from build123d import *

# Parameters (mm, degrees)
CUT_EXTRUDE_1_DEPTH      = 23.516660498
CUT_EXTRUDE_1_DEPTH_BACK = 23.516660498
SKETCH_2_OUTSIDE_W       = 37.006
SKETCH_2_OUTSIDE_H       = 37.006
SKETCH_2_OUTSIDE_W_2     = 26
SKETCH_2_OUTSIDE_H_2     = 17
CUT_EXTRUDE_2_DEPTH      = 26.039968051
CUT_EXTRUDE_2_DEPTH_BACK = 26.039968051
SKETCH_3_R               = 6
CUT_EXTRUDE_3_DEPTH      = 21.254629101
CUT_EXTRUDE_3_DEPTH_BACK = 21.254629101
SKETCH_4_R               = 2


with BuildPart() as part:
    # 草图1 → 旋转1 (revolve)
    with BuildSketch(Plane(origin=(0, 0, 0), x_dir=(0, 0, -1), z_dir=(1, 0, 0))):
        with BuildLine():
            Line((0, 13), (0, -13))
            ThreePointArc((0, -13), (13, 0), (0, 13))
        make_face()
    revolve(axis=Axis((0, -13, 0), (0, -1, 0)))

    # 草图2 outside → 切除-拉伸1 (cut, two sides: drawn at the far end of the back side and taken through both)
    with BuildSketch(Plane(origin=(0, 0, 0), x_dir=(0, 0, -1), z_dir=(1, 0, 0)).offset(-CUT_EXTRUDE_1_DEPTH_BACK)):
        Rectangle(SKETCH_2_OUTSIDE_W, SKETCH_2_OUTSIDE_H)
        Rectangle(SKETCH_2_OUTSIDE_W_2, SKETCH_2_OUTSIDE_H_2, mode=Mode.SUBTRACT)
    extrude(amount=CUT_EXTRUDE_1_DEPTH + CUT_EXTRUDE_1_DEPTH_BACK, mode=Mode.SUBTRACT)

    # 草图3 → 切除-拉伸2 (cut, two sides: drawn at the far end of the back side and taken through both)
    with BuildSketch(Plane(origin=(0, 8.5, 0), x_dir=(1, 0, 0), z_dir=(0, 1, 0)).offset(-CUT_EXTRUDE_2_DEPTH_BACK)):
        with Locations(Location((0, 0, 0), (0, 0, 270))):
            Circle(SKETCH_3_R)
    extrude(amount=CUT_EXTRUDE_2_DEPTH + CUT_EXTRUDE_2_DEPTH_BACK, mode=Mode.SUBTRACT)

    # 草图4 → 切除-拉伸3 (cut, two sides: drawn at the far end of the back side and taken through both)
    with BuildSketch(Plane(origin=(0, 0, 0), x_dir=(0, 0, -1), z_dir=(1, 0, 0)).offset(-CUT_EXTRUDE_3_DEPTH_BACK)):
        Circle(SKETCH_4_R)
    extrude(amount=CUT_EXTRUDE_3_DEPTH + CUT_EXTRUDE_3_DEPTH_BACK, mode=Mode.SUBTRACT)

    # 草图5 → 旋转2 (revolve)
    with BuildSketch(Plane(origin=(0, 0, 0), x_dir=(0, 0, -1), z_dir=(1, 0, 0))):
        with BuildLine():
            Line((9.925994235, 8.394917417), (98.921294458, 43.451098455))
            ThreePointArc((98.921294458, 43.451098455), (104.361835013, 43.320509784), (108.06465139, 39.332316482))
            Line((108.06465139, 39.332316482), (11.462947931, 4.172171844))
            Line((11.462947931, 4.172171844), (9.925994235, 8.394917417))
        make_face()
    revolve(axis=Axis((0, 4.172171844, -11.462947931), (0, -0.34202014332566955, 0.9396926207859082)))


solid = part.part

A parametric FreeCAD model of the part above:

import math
import FreeCAD as App
import Part
import Sketcher
from FreeCAD import Vector
Q = App.Units.Quantity

doc = App.newDocument("Part")
params = doc.addObject("Spreadsheet::Sheet", "Params")
for row, (alias, value) in enumerate([
    ("sketch1_radius", "13 mm"),
    ("revolution_angle", "360 deg"),
    ("sketch2_width", "17 mm"),
    ("sketch2_height", "26 mm"),
    ("sketch3_diameter", "12 mm"),
    ("sketch4_diameter", "4 mm"),
    ("sketch5_radius", "7 mm"),
    ("revolution2_angle", "360 deg"),
], start=1):
    params.set(f"A{row}", alias)
    params.set(f"B{row}", "=" + value)
    params.setAlias(f"B{row}", alias)

body = doc.addObject("PartDesign::Body", "Body")

sketch1 = doc.addObject("Sketcher::SketchObject", "Sketch")
body.addObject(sketch1)
sketch1.AttachmentSupport = (doc.YZ_Plane, [""])
sketch1.MapMode = "FlatFace"
sketch1.addGeometry([
    Part.LineSegment(Vector(13, 0, 0), Vector(-13, 0, 0)),
    Part.ArcOfCircle(Part.Circle(Vector(0, 0, 0), Vector(0, 0, 1), 13), math.radians(180), math.radians(360)),
], False)
sketch1.addConstraint([
    Sketcher.Constraint("Coincident", 0, 1, 1, 2),
    Sketcher.Constraint("Coincident", 1, 1, 0, 2),
    Sketcher.Constraint("Horizontal", 0),
    Sketcher.Constraint("Coincident", 1, 3, -1, 1),
    Sketcher.Constraint("PointOnObject", 0, 1, -1),
    Sketcher.Constraint("Radius", 1, 13.0),
])
sketch1.setExpression("Constraints[5]", "Params.sketch1_radius")
revolution = doc.addObject("PartDesign::Revolution", "Revolution")
body.addObject(revolution)
revolution.Profile = sketch1
revolution.ReferenceAxis = (sketch1, ["H_Axis"])
revolution.setExpression("Angle", "Params.revolution_angle")

sketch2 = doc.addObject("Sketcher::SketchObject", "Sketch001")
body.addObject(sketch2)
sketch2.AttachmentSupport = (doc.YZ_Plane, [""])
sketch2.MapMode = "FlatFace"
sketch2.addGeometry([
    Part.LineSegment(Vector(19, 19, 0), Vector(-19, 19, 0)),
    Part.LineSegment(Vector(-19, 19, 0), Vector(-19, -19, 0)),
    Part.LineSegment(Vector(-19, -19, 0), Vector(19, -19, 0)),
    Part.LineSegment(Vector(19, -19, 0), Vector(19, 19, 0)),
    Part.LineSegment(Vector(-8, -13, 0), Vector(-8, 13, 0)),
    Part.LineSegment(Vector(-8, 13, 0), Vector(8, 13, 0)),
    Part.LineSegment(Vector(8, 13, 0), Vector(8, -13, 0)),
    Part.LineSegment(Vector(8, -13, 0), Vector(-8, -13, 0)),
], False)
sketch2.addConstraint([
    Sketcher.Constraint("Coincident", 0, 2, 1, 1),
    Sketcher.Constraint("Coincident", 1, 2, 2, 1),
    Sketcher.Constraint("Coincident", 2, 2, 3, 1),
    Sketcher.Constraint("Coincident", 3, 2, 0, 1),
    Sketcher.Constraint("Coincident", 4, 2, 5, 1),
    Sketcher.Constraint("Coincident", 5, 2, 6, 1),
    Sketcher.Constraint("Coincident", 6, 2, 7, 1),
    Sketcher.Constraint("Coincident", 7, 2, 4, 1),
    Sketcher.Constraint("Horizontal", 0),
    Sketcher.Constraint("Vertical", 1),
    Sketcher.Constraint("Horizontal", 2),
    Sketcher.Constraint("Vertical", 3),
    Sketcher.Constraint("Vertical", 4),
    Sketcher.Constraint("Horizontal", 5),
    Sketcher.Constraint("Vertical", 6),
    Sketcher.Constraint("Horizontal", 7),
    Sketcher.Constraint("Symmetric", 0, 2, 2, 2, -1, 1),
    Sketcher.Constraint("Symmetric", 4, 2, 6, 2, -1, 1),
    Sketcher.Constraint("Equal", 2, 1),
    Sketcher.Constraint("DistanceX", 5, 1, 5, 2, 17.0),
    Sketcher.Constraint("DistanceY", 4, 1, 4, 2, 26.0),
    Sketcher.Constraint("DistanceX", 0, 2, 0, 1, 37.006),
])
sketch2.setExpression("Constraints[19]", "Params.sketch2_width")
sketch2.setExpression("Constraints[20]", "Params.sketch2_height")
pocket1 = doc.addObject("PartDesign::Pocket", "Pocket")
body.addObject(pocket1)
pocket1.Profile = sketch2
pocket1.Type = "ThroughAll"
pocket1.Midplane = True

sketch3 = doc.addObject("Sketcher::SketchObject", "Sketch002")
body.addObject(sketch3)
sketch3.AttachmentSupport = (doc.XZ_Plane, [""])
sketch3.MapMode = "FlatFace"
sketch3.AttachmentOffset = App.Placement(Vector(0, 0, -8.5), App.Rotation())
sketch3.addGeometry(Part.Circle(Vector(0, 0, 0), Vector(0, 0, 1), 6), False)
sketch3.addConstraint([
    Sketcher.Constraint("Coincident", 0, 3, -1, 1),
    Sketcher.Constraint("Diameter", 0, 12.0),
])
sketch3.setExpression("Constraints[1]", "Params.sketch3_diameter")
pocket2 = doc.addObject("PartDesign::Pocket", "Pocket001")
body.addObject(pocket2)
pocket2.Profile = sketch3
pocket2.Type = "ThroughAll"
pocket2.Midplane = True

sketch4 = doc.addObject("Sketcher::SketchObject", "Sketch003")
body.addObject(sketch4)
sketch4.AttachmentSupport = (doc.YZ_Plane, [""])
sketch4.MapMode = "FlatFace"
sketch4.addGeometry(Part.Circle(Vector(0, 0, 0), Vector(0, 0, 1), 2), False)
sketch4.addConstraint([
    Sketcher.Constraint("Coincident", 0, 3, -1, 1),
    Sketcher.Constraint("Diameter", 0, 4.0),
])
sketch4.setExpression("Constraints[1]", "Params.sketch4_diameter")
pocket3 = doc.addObject("PartDesign::Pocket", "Pocket002")
body.addObject(pocket3)
pocket3.Profile = sketch4
pocket3.Type = "ThroughAll"
pocket3.Midplane = True

sketch5 = doc.addObject("Sketcher::SketchObject", "Sketch004")
body.addObject(sketch5)
sketch5.AttachmentSupport = (doc.YZ_Plane, [""])
sketch5.MapMode = "FlatFace"
sketch5.addGeometry([
    Part.LineSegment(Vector(43.5, -98.9, 0), Vector(8.4, -9.9, 0)),
    Part.LineSegment(Vector(8.4, -9.9, 0), Vector(4.2, -11.5, 0)),
    Part.LineSegment(Vector(4.2, -11.5, 0), Vector(39.3, -108.1, 0)),
    Part.ArcOfCircle(Part.Circle(Vector(36.9, -101.5, 0), Vector(0, 0, 1), 7), math.radians(-70), math.radians(21)),
], False)
sketch5.addGeometry(Part.LineSegment(Vector(39.3, -108.1, 0), Vector(4.2, -11.5, 0)), True)
sketch5.addConstraint([
    Sketcher.Constraint("Coincident", 0, 2, 1, 1),
    Sketcher.Constraint("Coincident", 1, 2, 2, 1),
    Sketcher.Constraint("Coincident", 2, 2, 3, 1),
    Sketcher.Constraint("Tangent", 3, 2, 0, 1),
    Sketcher.Constraint("Coincident", 4, 1, 2, 2),
    Sketcher.Constraint("Coincident", 4, 2, 1, 2),
    Sketcher.Constraint("Perpendicular", 1, 2),
    Sketcher.Constraint("Radius", 3, 7.0),
    Sketcher.Constraint("Angle", 1, Q("-160 deg")),
    Sketcher.Constraint("Angle", 0, Q("111.5 deg")),
    Sketcher.Constraint("DistanceX", -1, 1, 3, 2, 43.451098),
    Sketcher.Constraint("DistanceX", 0, 2, 2, 2, 30.937399),
    Sketcher.Constraint("DistanceY", 3, 2, 0, 2, 88.9953),
    Sketcher.Constraint("DistanceY", 2, 2, -1, 1, 108.064651),
])
sketch5.setExpression("Constraints[7]", "Params.sketch5_radius")
revolution2 = doc.addObject("PartDesign::Revolution", "Revolution001")
body.addObject(revolution2)
revolution2.Profile = sketch5
revolution2.ReferenceAxis = (sketch5, ["Axis0"])
revolution2.setExpression("Angle", "Params.revolution2_angle")

doc.recompute()
